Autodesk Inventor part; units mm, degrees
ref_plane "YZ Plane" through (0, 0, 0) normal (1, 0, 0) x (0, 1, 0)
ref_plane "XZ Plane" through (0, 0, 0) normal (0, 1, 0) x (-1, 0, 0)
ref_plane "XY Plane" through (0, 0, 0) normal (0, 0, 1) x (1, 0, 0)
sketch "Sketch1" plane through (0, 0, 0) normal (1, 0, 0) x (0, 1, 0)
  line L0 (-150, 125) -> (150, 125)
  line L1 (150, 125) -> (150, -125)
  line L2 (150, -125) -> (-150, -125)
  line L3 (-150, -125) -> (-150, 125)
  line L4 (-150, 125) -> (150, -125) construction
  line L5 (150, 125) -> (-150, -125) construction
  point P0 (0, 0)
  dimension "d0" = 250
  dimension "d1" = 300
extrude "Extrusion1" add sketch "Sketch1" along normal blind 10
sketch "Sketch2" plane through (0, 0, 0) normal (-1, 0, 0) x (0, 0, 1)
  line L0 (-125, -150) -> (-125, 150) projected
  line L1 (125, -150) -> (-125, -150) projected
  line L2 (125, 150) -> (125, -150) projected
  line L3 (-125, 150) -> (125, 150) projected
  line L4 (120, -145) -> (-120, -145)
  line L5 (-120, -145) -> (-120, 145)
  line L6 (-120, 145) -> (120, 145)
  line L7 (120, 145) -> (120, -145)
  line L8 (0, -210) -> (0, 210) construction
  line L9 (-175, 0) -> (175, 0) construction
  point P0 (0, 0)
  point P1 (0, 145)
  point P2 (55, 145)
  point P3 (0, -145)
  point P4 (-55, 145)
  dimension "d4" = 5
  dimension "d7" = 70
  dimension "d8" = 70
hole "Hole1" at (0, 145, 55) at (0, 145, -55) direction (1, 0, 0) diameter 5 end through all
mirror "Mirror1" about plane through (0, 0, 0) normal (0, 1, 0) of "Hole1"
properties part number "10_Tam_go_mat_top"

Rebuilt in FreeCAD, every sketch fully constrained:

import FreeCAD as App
import Part
import Sketcher
from FreeCAD import Vector
Q = App.Units.Quantity


def add_polygon(sketch, points):
    """Adds a closed chain of lines whose ends are joined by coincident constraints."""
    first, n = sketch.GeometryCount, len(points)
    for a, b in zip(points, points[1:] + points[:1]):
        sketch.addGeometry(Part.LineSegment(App.Vector(*a, 0), App.Vector(*b, 0)), False)
    for i in range(n):
        sketch.addConstraint(Sketcher.Constraint("Coincident", first + i, 2, first + (i + 1) % n, 1))

doc = App.newDocument("Part")
body = doc.addObject("PartDesign::Body", "Body")

sketch1 = body.newObject("Sketcher::SketchObject", "Sketch")
sketch1.AttachmentSupport = (doc.getObject("YZ_Plane"), [""])
sketch1.MapMode = "FlatFace"
add_polygon(sketch1, [(150, 125), (-150, 125), (-150, -125), (150, -125)])
sketch1.addConstraint(Sketcher.Constraint("Horizontal", 0))
sketch1.addConstraint(Sketcher.Constraint("Vertical", 1))
sketch1.addConstraint(Sketcher.Constraint("Horizontal", 2))
sketch1.addConstraint(Sketcher.Constraint("Vertical", 3))
sketch1.addConstraint(Sketcher.Constraint("Symmetric", 0, 2, 2, 2, -1, 1))
sketch1.addConstraint(Sketcher.Constraint("DistanceX", 0, 2, 0, 1, Q("300 mm")))
sketch1.addConstraint(Sketcher.Constraint("DistanceY", 1, 2, 1, 1, Q("250 mm")))
pad1 = body.newObject("PartDesign::Pad", "Pad")
pad1.Profile = sketch1
pad1.Length = 10

sketch2 = body.newObject("Sketcher::SketchObject", "Sketch001")
sketch2.AttachmentSupport = (doc.getObject("YZ_Plane"), [""])
sketch2.MapMode = "FlatFace"
sketch2.addGeometry(Part.Circle(Vector(145, 55, 0), Vector(0, 0, 1), 2.5), False)
sketch2.addGeometry(Part.Circle(Vector(145, -55, 0), Vector(0, 0, 1), 2.5), False)
sketch2.addConstraint(Sketcher.Constraint("Equal", 0, 1))
sketch2.addConstraint(Sketcher.Constraint("Symmetric", 0, 3, 1, 3, -1))
sketch2.addConstraint(Sketcher.Constraint("Diameter", 0, Q("5 mm")))
sketch2.addConstraint(Sketcher.Constraint("DistanceX", -1, 1, 0, 3, Q("145 mm")))
sketch2.addConstraint(Sketcher.Constraint("DistanceY", -1, 1, 0, 3, Q("55 mm")))
doc.recompute()
hole = body.newObject("PartDesign::Hole", "Hole")
hole.Profile = sketch2
hole.ThreadType = "None"
hole.Diameter = 5
hole.DepthType = "ThroughAll"
hole.Reversed = True
doc.recompute()

mirrored = body.newObject("PartDesign::Mirrored", "Mirrored")
mirrored.Originals = [hole]
mirrored.MirrorPlane = (doc.getObject("XZ_Plane"), [""])
body.Tip = mirrored

doc.recompute()
